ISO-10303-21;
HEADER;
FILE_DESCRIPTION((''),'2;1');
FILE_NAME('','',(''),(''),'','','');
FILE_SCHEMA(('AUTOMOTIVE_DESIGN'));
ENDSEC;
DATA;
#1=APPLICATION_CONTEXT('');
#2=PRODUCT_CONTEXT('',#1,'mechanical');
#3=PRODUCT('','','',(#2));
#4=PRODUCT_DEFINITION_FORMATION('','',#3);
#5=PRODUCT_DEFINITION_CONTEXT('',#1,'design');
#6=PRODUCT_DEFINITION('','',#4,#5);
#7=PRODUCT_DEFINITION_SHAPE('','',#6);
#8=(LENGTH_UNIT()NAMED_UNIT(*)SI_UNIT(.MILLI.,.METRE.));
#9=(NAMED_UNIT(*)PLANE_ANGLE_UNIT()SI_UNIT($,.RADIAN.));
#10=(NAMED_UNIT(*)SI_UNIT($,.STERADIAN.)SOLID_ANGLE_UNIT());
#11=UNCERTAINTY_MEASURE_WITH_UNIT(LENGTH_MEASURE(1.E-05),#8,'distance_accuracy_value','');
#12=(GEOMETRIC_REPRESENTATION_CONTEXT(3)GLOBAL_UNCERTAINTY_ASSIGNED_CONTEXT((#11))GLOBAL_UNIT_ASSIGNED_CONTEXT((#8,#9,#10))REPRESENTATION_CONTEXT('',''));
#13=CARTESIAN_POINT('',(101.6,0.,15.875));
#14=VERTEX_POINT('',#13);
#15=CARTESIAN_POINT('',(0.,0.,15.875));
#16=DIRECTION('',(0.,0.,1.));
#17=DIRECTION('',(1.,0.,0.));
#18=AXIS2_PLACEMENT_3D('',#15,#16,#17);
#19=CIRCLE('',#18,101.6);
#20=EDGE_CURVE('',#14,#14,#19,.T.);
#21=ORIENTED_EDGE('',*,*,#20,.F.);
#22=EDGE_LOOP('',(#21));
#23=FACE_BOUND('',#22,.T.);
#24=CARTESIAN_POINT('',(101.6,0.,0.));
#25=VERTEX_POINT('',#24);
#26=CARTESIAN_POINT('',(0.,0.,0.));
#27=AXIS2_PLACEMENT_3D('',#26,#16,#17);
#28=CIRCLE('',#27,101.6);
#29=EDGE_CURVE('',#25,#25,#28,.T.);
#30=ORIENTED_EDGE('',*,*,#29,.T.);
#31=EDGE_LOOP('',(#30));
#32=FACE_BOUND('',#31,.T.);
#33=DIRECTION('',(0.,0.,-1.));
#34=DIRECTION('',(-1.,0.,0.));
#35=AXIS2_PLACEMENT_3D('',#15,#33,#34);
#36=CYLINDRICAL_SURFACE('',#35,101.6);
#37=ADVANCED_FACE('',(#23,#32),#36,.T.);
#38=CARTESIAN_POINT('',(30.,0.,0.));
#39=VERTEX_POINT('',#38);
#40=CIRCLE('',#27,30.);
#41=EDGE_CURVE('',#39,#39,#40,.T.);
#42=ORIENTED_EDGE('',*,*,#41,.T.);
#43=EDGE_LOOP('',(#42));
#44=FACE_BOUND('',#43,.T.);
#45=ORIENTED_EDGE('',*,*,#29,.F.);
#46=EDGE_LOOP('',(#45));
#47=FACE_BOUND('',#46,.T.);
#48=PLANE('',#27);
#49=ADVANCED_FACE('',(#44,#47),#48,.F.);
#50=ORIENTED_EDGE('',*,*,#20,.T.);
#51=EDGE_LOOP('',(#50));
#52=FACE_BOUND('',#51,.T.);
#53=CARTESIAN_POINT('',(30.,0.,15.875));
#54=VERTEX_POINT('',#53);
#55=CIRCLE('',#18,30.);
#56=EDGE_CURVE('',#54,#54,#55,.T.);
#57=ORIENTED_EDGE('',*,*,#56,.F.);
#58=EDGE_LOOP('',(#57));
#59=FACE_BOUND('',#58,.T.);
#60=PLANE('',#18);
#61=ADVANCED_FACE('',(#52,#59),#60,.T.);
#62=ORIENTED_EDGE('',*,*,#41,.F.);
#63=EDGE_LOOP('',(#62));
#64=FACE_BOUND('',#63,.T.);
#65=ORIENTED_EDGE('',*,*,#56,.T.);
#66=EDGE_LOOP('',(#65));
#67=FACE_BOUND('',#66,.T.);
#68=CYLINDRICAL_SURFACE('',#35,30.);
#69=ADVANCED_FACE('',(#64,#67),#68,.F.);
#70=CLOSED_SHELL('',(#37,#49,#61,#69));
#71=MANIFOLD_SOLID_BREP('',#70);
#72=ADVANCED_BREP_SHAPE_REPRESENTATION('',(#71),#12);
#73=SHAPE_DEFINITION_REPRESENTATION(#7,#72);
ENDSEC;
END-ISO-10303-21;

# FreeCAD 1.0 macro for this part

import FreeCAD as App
import Part
import Sketcher

V = App.Vector
Q = App.Units.Quantity

doc = App.newDocument("Part")
body = doc.addObject("PartDesign::Body", "Body")

sketch1 = body.newObject("Sketcher::SketchObject", "Sketch")
sketch1.AttachmentSupport = (doc.getObject("XY_Plane"), [""])
sketch1.MapMode = "FlatFace"
sketch1.addGeometry([
    Part.Circle(V(0, 0, 0), V(0, 0, 1), 102),
    Part.Circle(V(0, 0, 0), V(0, 0, 1), 30),
], False)
sketch1.addConstraint([
    Sketcher.Constraint("Coincident", 0, 3, -1, 1),
    Sketcher.Constraint("Coincident", 1, 3, -1, 1),
    Sketcher.Constraint("Diameter", 0, Q("8 in")),
    Sketcher.Constraint("Diameter", 1, Q("60 mm")),
])
pad1 = body.newObject("PartDesign::Pad", "Pad")
pad1.Profile = sketch1
pad1.Length = Q("0.625 in")

doc.recompute()
